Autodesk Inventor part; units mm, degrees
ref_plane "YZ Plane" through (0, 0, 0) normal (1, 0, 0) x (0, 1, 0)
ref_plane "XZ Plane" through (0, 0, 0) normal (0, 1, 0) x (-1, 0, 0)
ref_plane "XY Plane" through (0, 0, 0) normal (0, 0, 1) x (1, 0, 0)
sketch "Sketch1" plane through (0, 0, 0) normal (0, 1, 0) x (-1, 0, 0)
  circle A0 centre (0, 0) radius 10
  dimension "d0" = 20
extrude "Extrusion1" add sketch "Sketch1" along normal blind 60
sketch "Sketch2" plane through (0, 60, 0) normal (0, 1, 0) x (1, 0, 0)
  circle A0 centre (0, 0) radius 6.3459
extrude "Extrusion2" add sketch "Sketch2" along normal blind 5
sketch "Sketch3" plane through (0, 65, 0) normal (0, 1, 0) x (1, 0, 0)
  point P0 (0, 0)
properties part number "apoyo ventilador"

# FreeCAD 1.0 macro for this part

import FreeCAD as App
import Part
import Sketcher
Q = App.Units.Quantity

doc = App.newDocument("Part")
body = doc.addObject("PartDesign::Body", "Body")

sketch1 = doc.addObject("Sketcher::SketchObject", "Sketch")
body.addObject(sketch1)
sketch1.AttachmentSupport = (doc.XZ_Plane, [""])
sketch1.MapMode = "FlatFace"
sketch1.addGeometry(Part.Circle(App.Vector(0, 0, 0), App.Vector(0, 0, 1), 10), False)
sketch1.addConstraint([
    Sketcher.Constraint("Coincident", 0, 3, -1, 1),
    Sketcher.Constraint("Diameter", 0, Q("20 mm")),
])
pad1 = doc.addObject("PartDesign::Pad", "Pad")
body.addObject(pad1)
pad1.Profile = sketch1
pad1.Length = 60
pad1.Reversed = True

sketch2 = doc.addObject("Sketcher::SketchObject", "Sketch001")
body.addObject(sketch2)
sketch2.AttachmentSupport = (doc.XZ_Plane, [""])
sketch2.MapMode = "FlatFace"
sketch2.AttachmentOffset = App.Placement(App.Vector(0, 0, -60), App.Rotation())
sketch2.addGeometry(Part.Circle(App.Vector(0, 0, 0), App.Vector(0, 0, 1), 6), False)
sketch2.addConstraint([
    Sketcher.Constraint("Coincident", 0, 3, -1, 1),
    Sketcher.Constraint("Diameter", 0, Q("12.6918 mm")),
])
pad2 = doc.addObject("PartDesign::Pad", "Pad001")
body.addObject(pad2)
pad2.Profile = sketch2
pad2.Length = 5
pad2.Reversed = True

doc.recompute()
